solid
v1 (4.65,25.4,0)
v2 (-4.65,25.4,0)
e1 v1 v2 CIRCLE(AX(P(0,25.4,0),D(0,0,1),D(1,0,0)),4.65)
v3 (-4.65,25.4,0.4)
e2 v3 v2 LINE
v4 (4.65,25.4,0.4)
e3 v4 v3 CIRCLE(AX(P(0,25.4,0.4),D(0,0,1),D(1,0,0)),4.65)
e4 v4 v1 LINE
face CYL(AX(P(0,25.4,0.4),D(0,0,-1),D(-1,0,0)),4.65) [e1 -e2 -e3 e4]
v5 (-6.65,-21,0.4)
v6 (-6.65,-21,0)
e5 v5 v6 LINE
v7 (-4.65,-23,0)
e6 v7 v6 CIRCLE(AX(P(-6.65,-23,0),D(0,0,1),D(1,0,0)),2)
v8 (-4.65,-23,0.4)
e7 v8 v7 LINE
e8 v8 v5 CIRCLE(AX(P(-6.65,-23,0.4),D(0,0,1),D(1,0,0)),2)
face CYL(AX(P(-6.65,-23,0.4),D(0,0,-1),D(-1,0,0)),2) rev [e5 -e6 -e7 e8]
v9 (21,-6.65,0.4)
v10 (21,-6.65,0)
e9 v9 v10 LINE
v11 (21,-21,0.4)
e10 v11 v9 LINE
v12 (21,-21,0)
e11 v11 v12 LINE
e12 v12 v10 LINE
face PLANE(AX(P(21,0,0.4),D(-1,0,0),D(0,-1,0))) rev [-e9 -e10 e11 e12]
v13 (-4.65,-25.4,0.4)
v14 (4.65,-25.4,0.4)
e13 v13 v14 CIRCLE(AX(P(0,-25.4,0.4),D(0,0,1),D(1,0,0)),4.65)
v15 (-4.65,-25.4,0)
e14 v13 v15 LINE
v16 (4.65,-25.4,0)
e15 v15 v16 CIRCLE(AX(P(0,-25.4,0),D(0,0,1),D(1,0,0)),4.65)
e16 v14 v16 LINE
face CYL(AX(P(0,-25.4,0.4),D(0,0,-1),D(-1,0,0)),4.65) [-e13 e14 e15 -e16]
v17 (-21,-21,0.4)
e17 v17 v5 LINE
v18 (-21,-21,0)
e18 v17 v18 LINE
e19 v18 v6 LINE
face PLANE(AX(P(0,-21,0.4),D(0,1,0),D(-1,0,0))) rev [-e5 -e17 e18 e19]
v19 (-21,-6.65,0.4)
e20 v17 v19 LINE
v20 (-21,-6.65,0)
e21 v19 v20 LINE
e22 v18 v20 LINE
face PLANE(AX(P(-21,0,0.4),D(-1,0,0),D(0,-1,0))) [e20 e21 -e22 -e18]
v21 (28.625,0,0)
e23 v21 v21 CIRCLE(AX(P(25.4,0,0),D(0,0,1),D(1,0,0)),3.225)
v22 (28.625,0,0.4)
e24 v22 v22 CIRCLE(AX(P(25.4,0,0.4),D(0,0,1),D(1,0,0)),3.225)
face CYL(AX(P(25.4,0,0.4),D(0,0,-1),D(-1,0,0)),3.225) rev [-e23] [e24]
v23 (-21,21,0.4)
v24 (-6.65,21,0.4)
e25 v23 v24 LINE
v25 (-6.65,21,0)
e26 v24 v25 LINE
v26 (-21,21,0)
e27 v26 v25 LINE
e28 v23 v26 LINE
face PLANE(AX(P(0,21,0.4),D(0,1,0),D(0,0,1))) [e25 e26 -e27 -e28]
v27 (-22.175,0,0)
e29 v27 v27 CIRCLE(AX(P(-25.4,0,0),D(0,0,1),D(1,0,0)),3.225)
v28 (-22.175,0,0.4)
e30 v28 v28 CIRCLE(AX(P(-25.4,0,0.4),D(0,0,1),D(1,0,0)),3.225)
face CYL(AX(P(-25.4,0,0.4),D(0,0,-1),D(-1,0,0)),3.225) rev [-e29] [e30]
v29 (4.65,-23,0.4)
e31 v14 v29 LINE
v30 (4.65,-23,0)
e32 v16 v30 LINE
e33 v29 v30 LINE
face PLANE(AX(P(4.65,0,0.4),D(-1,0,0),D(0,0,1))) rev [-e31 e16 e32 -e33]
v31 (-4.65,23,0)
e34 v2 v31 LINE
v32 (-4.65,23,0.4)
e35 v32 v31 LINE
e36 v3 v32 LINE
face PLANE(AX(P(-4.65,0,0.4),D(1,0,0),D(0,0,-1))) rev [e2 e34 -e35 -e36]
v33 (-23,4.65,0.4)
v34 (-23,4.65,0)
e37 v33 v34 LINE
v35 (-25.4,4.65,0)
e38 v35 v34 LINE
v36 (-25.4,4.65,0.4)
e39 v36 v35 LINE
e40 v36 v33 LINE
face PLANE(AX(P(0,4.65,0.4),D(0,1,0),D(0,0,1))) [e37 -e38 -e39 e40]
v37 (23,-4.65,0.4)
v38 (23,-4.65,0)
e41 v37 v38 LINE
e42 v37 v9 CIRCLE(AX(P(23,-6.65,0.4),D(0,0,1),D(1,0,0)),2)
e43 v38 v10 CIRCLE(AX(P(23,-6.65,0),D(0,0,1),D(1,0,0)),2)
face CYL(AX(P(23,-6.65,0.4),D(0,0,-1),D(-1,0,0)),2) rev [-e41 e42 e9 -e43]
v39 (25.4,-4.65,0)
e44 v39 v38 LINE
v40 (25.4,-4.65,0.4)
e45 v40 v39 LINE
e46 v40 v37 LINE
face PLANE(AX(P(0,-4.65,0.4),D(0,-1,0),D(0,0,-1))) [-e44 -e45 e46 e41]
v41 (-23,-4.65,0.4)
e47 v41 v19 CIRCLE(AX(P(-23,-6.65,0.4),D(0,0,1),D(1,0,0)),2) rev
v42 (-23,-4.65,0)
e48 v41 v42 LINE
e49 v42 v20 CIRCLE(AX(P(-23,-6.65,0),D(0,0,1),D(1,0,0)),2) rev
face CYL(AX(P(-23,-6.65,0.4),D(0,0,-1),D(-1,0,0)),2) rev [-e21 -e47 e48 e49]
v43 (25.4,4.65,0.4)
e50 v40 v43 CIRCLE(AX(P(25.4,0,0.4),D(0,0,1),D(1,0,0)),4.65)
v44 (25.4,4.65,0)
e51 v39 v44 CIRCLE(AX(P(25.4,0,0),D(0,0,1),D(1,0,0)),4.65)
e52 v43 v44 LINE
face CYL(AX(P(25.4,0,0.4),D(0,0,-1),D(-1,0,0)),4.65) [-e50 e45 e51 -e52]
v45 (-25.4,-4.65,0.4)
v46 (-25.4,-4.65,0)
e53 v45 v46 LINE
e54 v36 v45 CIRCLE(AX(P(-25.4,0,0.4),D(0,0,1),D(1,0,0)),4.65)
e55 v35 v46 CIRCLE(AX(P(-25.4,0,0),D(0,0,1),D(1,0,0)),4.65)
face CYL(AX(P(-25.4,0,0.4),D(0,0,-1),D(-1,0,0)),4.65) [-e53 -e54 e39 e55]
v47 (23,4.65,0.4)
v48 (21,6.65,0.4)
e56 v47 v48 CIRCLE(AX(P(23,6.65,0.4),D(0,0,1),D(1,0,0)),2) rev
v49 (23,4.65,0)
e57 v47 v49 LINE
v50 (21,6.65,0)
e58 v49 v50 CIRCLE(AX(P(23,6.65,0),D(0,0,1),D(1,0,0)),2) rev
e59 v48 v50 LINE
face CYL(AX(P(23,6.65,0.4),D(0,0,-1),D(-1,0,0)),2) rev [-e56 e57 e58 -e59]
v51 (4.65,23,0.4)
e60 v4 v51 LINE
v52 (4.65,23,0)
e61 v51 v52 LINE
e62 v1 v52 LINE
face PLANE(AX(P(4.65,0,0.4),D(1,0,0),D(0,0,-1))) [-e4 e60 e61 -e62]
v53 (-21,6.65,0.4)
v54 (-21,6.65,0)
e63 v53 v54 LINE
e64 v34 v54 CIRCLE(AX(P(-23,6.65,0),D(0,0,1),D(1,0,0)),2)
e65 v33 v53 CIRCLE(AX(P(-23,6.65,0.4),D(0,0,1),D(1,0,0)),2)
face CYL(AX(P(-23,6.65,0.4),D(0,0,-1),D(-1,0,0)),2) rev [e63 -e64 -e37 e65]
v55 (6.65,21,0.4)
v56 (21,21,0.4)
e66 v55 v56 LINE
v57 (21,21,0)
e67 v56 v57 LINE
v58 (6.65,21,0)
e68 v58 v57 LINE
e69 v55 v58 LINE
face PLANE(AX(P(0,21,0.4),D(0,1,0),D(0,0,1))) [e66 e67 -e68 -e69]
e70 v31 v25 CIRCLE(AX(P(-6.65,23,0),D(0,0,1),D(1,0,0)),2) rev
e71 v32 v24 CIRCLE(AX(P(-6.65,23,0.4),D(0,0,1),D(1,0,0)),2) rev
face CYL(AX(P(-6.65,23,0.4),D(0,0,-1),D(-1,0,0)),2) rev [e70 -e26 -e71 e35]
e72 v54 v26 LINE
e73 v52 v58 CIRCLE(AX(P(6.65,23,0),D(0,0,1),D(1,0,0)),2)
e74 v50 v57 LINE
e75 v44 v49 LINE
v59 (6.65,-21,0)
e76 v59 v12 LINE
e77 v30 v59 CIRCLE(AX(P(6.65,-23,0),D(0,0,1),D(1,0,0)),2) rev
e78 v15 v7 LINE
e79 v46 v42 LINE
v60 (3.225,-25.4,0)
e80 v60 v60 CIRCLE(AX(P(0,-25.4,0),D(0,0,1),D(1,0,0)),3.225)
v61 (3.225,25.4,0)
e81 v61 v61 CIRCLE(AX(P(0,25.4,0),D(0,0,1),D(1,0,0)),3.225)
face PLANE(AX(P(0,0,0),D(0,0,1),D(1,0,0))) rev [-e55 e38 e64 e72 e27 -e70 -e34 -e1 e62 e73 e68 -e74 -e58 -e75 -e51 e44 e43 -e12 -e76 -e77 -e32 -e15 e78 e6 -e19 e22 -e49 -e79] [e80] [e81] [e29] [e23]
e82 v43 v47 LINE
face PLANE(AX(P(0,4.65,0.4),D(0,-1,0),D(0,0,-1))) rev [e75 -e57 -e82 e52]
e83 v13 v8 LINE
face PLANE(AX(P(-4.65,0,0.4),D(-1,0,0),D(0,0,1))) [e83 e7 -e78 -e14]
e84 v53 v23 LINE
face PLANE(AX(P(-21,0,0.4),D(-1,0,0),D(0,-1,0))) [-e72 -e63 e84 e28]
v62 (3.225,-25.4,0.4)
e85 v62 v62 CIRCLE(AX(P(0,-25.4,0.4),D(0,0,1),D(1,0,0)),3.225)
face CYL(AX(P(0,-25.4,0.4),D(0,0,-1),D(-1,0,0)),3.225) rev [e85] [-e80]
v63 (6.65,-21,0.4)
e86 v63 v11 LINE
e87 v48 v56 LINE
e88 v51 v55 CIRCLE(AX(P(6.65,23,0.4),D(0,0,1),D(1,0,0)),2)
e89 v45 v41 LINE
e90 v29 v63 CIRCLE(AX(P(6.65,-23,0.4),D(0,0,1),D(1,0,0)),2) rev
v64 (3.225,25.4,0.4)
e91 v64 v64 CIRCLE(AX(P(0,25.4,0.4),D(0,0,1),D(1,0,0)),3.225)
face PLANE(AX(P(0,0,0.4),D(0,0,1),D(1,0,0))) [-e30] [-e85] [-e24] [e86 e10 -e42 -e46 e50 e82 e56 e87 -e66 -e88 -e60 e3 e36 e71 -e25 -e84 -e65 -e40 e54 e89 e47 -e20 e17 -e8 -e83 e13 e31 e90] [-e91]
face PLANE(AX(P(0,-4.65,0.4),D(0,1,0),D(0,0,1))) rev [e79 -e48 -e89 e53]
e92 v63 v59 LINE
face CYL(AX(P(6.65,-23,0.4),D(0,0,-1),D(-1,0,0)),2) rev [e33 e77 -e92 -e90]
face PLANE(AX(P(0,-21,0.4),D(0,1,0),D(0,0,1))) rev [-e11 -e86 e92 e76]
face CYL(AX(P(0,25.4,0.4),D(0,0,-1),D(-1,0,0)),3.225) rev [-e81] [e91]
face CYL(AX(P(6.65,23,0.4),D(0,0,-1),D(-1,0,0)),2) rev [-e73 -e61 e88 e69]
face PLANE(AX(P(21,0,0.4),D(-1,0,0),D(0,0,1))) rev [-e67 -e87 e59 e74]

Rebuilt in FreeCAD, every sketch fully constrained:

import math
import FreeCAD as App
import Part
import Sketcher
from FreeCAD import Vector

doc = App.newDocument("Part")
params = doc.addObject("Spreadsheet::Sheet", "Params")
for row, (alias, value) in enumerate([
    ("sketch1_radius", "2 mm"),
    ("sketch1_diameter", "6.45 mm"),
    ("sketch1_radius2", "4.65 mm"),
    ("sketch1_width", "2.4 mm"),
    ("pad1_length", "0.4 mm"),
], start=1):
    params.set(f"A{row}", alias)
    params.set(f"B{row}", "=" + value)
    params.setAlias(f"B{row}", alias)

body = doc.addObject("PartDesign::Body", "Body")

# Sketch on XY plane
sketch1 = body.newObject("Sketcher::SketchObject", "Sketch")
sketch1.AttachmentSupport = (doc.getObject("XY_Plane"), [""])
sketch1.MapMode = "FlatFace"
sketch1.addGeometry(Part.ArcOfCircle(Part.Circle(Vector(0, 25.4, 0), Vector(0, 0, 1), 4.65), math.radians(0), math.radians(180)), False)
sketch1.addGeometry(Part.LineSegment(Vector(-4.65, 25.4, 0), Vector(-4.65, 23, 0)), False)
sketch1.addGeometry(Part.ArcOfCircle(Part.Circle(Vector(-6.65, 23, 0), Vector(0, 0, 1), 2), math.radians(-90), math.radians(0)), False)
sketch1.addGeometry(Part.LineSegment(Vector(-6.65, 21, 0), Vector(-21, 21, 0)), False)
sketch1.addGeometry(Part.LineSegment(Vector(-21, 21, 0), Vector(-21, 6.65, 0)), False)
sketch1.addGeometry(Part.ArcOfCircle(Part.Circle(Vector(-23, 6.65, 0), Vector(0, 0, 1), 2), math.radians(-90), math.radians(0)), False)
sketch1.addGeometry(Part.LineSegment(Vector(-23, 4.65, 0), Vector(-25.4, 4.65, 0)), False)
sketch1.addGeometry(Part.ArcOfCircle(Part.Circle(Vector(-25.4, 0, 0), Vector(0, 0, 1), 4.65), math.radians(90), math.radians(270)), False)
sketch1.addGeometry(Part.LineSegment(Vector(-25.4, -4.65, 0), Vector(-23, -4.65, 0)), False)
sketch1.addGeometry(Part.ArcOfCircle(Part.Circle(Vector(-23, -6.65, 0), Vector(0, 0, 1), 2), math.radians(0), math.radians(90)), False)
sketch1.addGeometry(Part.LineSegment(Vector(-21, -6.65, 0), Vector(-21, -21, 0)), False)
sketch1.addGeometry(Part.LineSegment(Vector(-21, -21, 0), Vector(-6.65, -21, 0)), False)
sketch1.addGeometry(Part.ArcOfCircle(Part.Circle(Vector(-6.65, -23, 0), Vector(0, 0, 1), 2), math.radians(0), math.radians(90)), False)
sketch1.addGeometry(Part.LineSegment(Vector(-4.65, -23, 0), Vector(-4.65, -25.4, 0)), False)
sketch1.addGeometry(Part.ArcOfCircle(Part.Circle(Vector(0, -25.4, 0), Vector(0, 0, 1), 4.65), math.radians(180), math.radians(360)), False)
sketch1.addGeometry(Part.LineSegment(Vector(4.65, -25.4, 0), Vector(4.65, -23, 0)), False)
sketch1.addGeometry(Part.ArcOfCircle(Part.Circle(Vector(6.65, -23, 0), Vector(0, 0, 1), 2), math.radians(90), math.radians(180)), False)
sketch1.addGeometry(Part.LineSegment(Vector(6.65, -21, 0), Vector(21, -21, 0)), False)
sketch1.addGeometry(Part.LineSegment(Vector(21, -21, 0), Vector(21, -6.65, 0)), False)
sketch1.addGeometry(Part.ArcOfCircle(Part.Circle(Vector(23, -6.65, 0), Vector(0, 0, 1), 2), math.radians(90), math.radians(180)), False)
sketch1.addGeometry(Part.LineSegment(Vector(23, -4.65, 0), Vector(25.4, -4.65, 0)), False)
sketch1.addGeometry(Part.ArcOfCircle(Part.Circle(Vector(25.4, 0, 0), Vector(0, 0, 1), 4.65), math.radians(-90), math.radians(90)), False)
sketch1.addGeometry(Part.LineSegment(Vector(25.4, 4.65, 0), Vector(23, 4.65, 0)), False)
sketch1.addGeometry(Part.ArcOfCircle(Part.Circle(Vector(23, 6.65, 0), Vector(0, 0, 1), 2), math.radians(-180), math.radians(-90)), False)
sketch1.addGeometry(Part.LineSegment(Vector(21, 6.65, 0), Vector(21, 21, 0)), False)
sketch1.addGeometry(Part.LineSegment(Vector(21, 21, 0), Vector(6.65, 21, 0)), False)
sketch1.addGeometry(Part.ArcOfCircle(Part.Circle(Vector(6.65, 23, 0), Vector(0, 0, 1), 2), math.radians(-180), math.radians(-90)), False)
sketch1.addGeometry(Part.LineSegment(Vector(4.65, 23, 0), Vector(4.65, 25.4, 0)), False)
sketch1.addGeometry(Part.Circle(Vector(0, -25.4, 0), Vector(0, 0, 1), 3.225), False)
sketch1.addGeometry(Part.Circle(Vector(-25.4, 0, 0), Vector(0, 0, 1), 3.225), False)
sketch1.addGeometry(Part.Circle(Vector(25.4, 0, 0), Vector(0, 0, 1), 3.225), False)
sketch1.addGeometry(Part.Circle(Vector(0, 25.4, 0), Vector(0, 0, 1), 3.225), False)
sketch1.addConstraint(Sketcher.Constraint("Tangent", 0, 2, 1, 1))
sketch1.addConstraint(Sketcher.Constraint("Tangent", 1, 2, 2, 2))
sketch1.addConstraint(Sketcher.Constraint("Tangent", 2, 1, 3, 1))
sketch1.addConstraint(Sketcher.Constraint("Coincident", 3, 2, 4, 1))
sketch1.addConstraint(Sketcher.Constraint("Tangent", 4, 2, 5, 2))
sketch1.addConstraint(Sketcher.Constraint("Tangent", 5, 1, 6, 1))
sketch1.addConstraint(Sketcher.Constraint("Tangent", 6, 2, 7, 1))
sketch1.addConstraint(Sketcher.Constraint("Tangent", 7, 2, 8, 1))
sketch1.addConstraint(Sketcher.Constraint("Tangent", 8, 2, 9, 2))
sketch1.addConstraint(Sketcher.Constraint("Tangent", 9, 1, 10, 1))
sketch1.addConstraint(Sketcher.Constraint("Coincident", 10, 2, 11, 1))
sketch1.addConstraint(Sketcher.Constraint("Tangent", 11, 2, 12, 2))
sketch1.addConstraint(Sketcher.Constraint("Tangent", 12, 1, 13, 1))
sketch1.addConstraint(Sketcher.Constraint("Tangent", 13, 2, 14, 1))
sketch1.addConstraint(Sketcher.Constraint("Tangent", 14, 2, 15, 1))
sketch1.addConstraint(Sketcher.Constraint("Tangent", 15, 2, 16, 2))
sketch1.addConstraint(Sketcher.Constraint("Tangent", 16, 1, 17, 1))
sketch1.addConstraint(Sketcher.Constraint("Coincident", 17, 2, 18, 1))
sketch1.addConstraint(Sketcher.Constraint("Tangent", 18, 2, 19, 2))
sketch1.addConstraint(Sketcher.Constraint("Tangent", 19, 1, 20, 1))
sketch1.addConstraint(Sketcher.Constraint("Tangent", 20, 2, 21, 1))
sketch1.addConstraint(Sketcher.Constraint("Tangent", 21, 2, 22, 1))
sketch1.addConstraint(Sketcher.Constraint("Tangent", 22, 2, 23, 2))
sketch1.addConstraint(Sketcher.Constraint("Tangent", 23, 1, 24, 1))
sketch1.addConstraint(Sketcher.Constraint("Coincident", 24, 2, 25, 1))
sketch1.addConstraint(Sketcher.Constraint("Tangent", 25, 2, 26, 2))
sketch1.addConstraint(Sketcher.Constraint("Tangent", 26, 1, 27, 1))
sketch1.addConstraint(Sketcher.Constraint("Tangent", 27, 2, 0, 1))
sketch1.addConstraint(Sketcher.Constraint("Vertical", 1))
sketch1.addConstraint(Sketcher.Constraint("Horizontal", 3))
sketch1.addConstraint(Sketcher.Constraint("Vertical", 4))
sketch1.addConstraint(Sketcher.Constraint("Horizontal", 6))
sketch1.addConstraint(Sketcher.Constraint("Horizontal", 8))
sketch1.addConstraint(Sketcher.Constraint("Vertical", 10))
sketch1.addConstraint(Sketcher.Constraint("Horizontal", 11))
sketch1.addConstraint(Sketcher.Constraint("Vertical", 13))
sketch1.addConstraint(Sketcher.Constraint("Vertical", 15))
sketch1.addConstraint(Sketcher.Constraint("Horizontal", 17))
sketch1.addConstraint(Sketcher.Constraint("Vertical", 18))
sketch1.addConstraint(Sketcher.Constraint("Horizontal", 20))
sketch1.addConstraint(Sketcher.Constraint("Horizontal", 22))
sketch1.addConstraint(Sketcher.Constraint("Vertical", 24))
sketch1.addConstraint(Sketcher.Constraint("Horizontal", 25))
sketch1.addConstraint(Sketcher.Constraint("Vertical", 27))
sketch1.addConstraint(Sketcher.Constraint("Coincident", 28, 3, 14, 3))
sketch1.addConstraint(Sketcher.Constraint("Coincident", 29, 3, 7, 3))
sketch1.addConstraint(Sketcher.Constraint("Coincident", 30, 3, 21, 3))
sketch1.addConstraint(Sketcher.Constraint("Coincident", 31, 3, 0, 3))
sketch1.addConstraint(Sketcher.Constraint("Equal", 2, 5))
sketch1.addConstraint(Sketcher.Constraint("Equal", 0, 7))
sketch1.addConstraint(Sketcher.Constraint("Equal", 5, 9))
sketch1.addConstraint(Sketcher.Constraint("Equal", 9, 12))
sketch1.addConstraint(Sketcher.Constraint("Equal", 7, 14))
sketch1.addConstraint(Sketcher.Constraint("Equal", 12, 16))
sketch1.addConstraint(Sketcher.Constraint("Equal", 16, 19))
sketch1.addConstraint(Sketcher.Constraint("Equal", 14, 21))
sketch1.addConstraint(Sketcher.Constraint("Equal", 19, 23))
sketch1.addConstraint(Sketcher.Constraint("Equal", 23, 26))
sketch1.addConstraint(Sketcher.Constraint("Equal", 28, 29))
sketch1.addConstraint(Sketcher.Constraint("Equal", 29, 30))
sketch1.addConstraint(Sketcher.Constraint("Equal", 30, 31))
sketch1.addConstraint(Sketcher.Constraint("Symmetric", 0, 3, 14, 3, -1, 1))
sketch1.addConstraint(Sketcher.Constraint("Symmetric", 5, 3, 19, 3, -1, 1))
sketch1.addConstraint(Sketcher.Constraint("Symmetric", 10, 2, 24, 2, -1, 1))
sketch1.addConstraint(Sketcher.Constraint("Symmetric", 12, 3, 16, 3, -2))
sketch1.addConstraint(Sketcher.Constraint("Symmetric", 9, 3, 19, 3, -2))
sketch1.addConstraint(Sketcher.Constraint("Horizontal", 2, 3, 26, 3))
sketch1.addConstraint(Sketcher.Constraint("Equal", 8, 20))
sketch1.addConstraint(Sketcher.Constraint("Equal", 22, 1))
sketch1.addConstraint(Sketcher.Constraint("Equal", 25, 4))
sketch1.addConstraint(Sketcher.Constraint("Radius", 2, 2.0))
sketch1.addConstraint(Sketcher.Constraint("Diameter", 28, 6.45))
sketch1.addConstraint(Sketcher.Constraint("Radius", 0, 4.65))
sketch1.addConstraint(Sketcher.Constraint("DistanceX", 6, 2, 6, 1, 2.4))
sketch1.addConstraint(Sketcher.Constraint("DistanceY", -1, 1, 2, 3, 23.0))
sketch1.setExpression("Constraints[70]", "Params.sketch1_radius")
sketch1.setExpression("Constraints[71]", "Params.sketch1_diameter")
sketch1.setExpression("Constraints[72]", "Params.sketch1_radius2")
sketch1.setExpression("Constraints[73]", "Params.sketch1_width")
pad1 = body.newObject("PartDesign::Pad", "Pad")
pad1.Profile = sketch1
pad1.setExpression("Length", "Params.pad1_length")

doc.recompute()
